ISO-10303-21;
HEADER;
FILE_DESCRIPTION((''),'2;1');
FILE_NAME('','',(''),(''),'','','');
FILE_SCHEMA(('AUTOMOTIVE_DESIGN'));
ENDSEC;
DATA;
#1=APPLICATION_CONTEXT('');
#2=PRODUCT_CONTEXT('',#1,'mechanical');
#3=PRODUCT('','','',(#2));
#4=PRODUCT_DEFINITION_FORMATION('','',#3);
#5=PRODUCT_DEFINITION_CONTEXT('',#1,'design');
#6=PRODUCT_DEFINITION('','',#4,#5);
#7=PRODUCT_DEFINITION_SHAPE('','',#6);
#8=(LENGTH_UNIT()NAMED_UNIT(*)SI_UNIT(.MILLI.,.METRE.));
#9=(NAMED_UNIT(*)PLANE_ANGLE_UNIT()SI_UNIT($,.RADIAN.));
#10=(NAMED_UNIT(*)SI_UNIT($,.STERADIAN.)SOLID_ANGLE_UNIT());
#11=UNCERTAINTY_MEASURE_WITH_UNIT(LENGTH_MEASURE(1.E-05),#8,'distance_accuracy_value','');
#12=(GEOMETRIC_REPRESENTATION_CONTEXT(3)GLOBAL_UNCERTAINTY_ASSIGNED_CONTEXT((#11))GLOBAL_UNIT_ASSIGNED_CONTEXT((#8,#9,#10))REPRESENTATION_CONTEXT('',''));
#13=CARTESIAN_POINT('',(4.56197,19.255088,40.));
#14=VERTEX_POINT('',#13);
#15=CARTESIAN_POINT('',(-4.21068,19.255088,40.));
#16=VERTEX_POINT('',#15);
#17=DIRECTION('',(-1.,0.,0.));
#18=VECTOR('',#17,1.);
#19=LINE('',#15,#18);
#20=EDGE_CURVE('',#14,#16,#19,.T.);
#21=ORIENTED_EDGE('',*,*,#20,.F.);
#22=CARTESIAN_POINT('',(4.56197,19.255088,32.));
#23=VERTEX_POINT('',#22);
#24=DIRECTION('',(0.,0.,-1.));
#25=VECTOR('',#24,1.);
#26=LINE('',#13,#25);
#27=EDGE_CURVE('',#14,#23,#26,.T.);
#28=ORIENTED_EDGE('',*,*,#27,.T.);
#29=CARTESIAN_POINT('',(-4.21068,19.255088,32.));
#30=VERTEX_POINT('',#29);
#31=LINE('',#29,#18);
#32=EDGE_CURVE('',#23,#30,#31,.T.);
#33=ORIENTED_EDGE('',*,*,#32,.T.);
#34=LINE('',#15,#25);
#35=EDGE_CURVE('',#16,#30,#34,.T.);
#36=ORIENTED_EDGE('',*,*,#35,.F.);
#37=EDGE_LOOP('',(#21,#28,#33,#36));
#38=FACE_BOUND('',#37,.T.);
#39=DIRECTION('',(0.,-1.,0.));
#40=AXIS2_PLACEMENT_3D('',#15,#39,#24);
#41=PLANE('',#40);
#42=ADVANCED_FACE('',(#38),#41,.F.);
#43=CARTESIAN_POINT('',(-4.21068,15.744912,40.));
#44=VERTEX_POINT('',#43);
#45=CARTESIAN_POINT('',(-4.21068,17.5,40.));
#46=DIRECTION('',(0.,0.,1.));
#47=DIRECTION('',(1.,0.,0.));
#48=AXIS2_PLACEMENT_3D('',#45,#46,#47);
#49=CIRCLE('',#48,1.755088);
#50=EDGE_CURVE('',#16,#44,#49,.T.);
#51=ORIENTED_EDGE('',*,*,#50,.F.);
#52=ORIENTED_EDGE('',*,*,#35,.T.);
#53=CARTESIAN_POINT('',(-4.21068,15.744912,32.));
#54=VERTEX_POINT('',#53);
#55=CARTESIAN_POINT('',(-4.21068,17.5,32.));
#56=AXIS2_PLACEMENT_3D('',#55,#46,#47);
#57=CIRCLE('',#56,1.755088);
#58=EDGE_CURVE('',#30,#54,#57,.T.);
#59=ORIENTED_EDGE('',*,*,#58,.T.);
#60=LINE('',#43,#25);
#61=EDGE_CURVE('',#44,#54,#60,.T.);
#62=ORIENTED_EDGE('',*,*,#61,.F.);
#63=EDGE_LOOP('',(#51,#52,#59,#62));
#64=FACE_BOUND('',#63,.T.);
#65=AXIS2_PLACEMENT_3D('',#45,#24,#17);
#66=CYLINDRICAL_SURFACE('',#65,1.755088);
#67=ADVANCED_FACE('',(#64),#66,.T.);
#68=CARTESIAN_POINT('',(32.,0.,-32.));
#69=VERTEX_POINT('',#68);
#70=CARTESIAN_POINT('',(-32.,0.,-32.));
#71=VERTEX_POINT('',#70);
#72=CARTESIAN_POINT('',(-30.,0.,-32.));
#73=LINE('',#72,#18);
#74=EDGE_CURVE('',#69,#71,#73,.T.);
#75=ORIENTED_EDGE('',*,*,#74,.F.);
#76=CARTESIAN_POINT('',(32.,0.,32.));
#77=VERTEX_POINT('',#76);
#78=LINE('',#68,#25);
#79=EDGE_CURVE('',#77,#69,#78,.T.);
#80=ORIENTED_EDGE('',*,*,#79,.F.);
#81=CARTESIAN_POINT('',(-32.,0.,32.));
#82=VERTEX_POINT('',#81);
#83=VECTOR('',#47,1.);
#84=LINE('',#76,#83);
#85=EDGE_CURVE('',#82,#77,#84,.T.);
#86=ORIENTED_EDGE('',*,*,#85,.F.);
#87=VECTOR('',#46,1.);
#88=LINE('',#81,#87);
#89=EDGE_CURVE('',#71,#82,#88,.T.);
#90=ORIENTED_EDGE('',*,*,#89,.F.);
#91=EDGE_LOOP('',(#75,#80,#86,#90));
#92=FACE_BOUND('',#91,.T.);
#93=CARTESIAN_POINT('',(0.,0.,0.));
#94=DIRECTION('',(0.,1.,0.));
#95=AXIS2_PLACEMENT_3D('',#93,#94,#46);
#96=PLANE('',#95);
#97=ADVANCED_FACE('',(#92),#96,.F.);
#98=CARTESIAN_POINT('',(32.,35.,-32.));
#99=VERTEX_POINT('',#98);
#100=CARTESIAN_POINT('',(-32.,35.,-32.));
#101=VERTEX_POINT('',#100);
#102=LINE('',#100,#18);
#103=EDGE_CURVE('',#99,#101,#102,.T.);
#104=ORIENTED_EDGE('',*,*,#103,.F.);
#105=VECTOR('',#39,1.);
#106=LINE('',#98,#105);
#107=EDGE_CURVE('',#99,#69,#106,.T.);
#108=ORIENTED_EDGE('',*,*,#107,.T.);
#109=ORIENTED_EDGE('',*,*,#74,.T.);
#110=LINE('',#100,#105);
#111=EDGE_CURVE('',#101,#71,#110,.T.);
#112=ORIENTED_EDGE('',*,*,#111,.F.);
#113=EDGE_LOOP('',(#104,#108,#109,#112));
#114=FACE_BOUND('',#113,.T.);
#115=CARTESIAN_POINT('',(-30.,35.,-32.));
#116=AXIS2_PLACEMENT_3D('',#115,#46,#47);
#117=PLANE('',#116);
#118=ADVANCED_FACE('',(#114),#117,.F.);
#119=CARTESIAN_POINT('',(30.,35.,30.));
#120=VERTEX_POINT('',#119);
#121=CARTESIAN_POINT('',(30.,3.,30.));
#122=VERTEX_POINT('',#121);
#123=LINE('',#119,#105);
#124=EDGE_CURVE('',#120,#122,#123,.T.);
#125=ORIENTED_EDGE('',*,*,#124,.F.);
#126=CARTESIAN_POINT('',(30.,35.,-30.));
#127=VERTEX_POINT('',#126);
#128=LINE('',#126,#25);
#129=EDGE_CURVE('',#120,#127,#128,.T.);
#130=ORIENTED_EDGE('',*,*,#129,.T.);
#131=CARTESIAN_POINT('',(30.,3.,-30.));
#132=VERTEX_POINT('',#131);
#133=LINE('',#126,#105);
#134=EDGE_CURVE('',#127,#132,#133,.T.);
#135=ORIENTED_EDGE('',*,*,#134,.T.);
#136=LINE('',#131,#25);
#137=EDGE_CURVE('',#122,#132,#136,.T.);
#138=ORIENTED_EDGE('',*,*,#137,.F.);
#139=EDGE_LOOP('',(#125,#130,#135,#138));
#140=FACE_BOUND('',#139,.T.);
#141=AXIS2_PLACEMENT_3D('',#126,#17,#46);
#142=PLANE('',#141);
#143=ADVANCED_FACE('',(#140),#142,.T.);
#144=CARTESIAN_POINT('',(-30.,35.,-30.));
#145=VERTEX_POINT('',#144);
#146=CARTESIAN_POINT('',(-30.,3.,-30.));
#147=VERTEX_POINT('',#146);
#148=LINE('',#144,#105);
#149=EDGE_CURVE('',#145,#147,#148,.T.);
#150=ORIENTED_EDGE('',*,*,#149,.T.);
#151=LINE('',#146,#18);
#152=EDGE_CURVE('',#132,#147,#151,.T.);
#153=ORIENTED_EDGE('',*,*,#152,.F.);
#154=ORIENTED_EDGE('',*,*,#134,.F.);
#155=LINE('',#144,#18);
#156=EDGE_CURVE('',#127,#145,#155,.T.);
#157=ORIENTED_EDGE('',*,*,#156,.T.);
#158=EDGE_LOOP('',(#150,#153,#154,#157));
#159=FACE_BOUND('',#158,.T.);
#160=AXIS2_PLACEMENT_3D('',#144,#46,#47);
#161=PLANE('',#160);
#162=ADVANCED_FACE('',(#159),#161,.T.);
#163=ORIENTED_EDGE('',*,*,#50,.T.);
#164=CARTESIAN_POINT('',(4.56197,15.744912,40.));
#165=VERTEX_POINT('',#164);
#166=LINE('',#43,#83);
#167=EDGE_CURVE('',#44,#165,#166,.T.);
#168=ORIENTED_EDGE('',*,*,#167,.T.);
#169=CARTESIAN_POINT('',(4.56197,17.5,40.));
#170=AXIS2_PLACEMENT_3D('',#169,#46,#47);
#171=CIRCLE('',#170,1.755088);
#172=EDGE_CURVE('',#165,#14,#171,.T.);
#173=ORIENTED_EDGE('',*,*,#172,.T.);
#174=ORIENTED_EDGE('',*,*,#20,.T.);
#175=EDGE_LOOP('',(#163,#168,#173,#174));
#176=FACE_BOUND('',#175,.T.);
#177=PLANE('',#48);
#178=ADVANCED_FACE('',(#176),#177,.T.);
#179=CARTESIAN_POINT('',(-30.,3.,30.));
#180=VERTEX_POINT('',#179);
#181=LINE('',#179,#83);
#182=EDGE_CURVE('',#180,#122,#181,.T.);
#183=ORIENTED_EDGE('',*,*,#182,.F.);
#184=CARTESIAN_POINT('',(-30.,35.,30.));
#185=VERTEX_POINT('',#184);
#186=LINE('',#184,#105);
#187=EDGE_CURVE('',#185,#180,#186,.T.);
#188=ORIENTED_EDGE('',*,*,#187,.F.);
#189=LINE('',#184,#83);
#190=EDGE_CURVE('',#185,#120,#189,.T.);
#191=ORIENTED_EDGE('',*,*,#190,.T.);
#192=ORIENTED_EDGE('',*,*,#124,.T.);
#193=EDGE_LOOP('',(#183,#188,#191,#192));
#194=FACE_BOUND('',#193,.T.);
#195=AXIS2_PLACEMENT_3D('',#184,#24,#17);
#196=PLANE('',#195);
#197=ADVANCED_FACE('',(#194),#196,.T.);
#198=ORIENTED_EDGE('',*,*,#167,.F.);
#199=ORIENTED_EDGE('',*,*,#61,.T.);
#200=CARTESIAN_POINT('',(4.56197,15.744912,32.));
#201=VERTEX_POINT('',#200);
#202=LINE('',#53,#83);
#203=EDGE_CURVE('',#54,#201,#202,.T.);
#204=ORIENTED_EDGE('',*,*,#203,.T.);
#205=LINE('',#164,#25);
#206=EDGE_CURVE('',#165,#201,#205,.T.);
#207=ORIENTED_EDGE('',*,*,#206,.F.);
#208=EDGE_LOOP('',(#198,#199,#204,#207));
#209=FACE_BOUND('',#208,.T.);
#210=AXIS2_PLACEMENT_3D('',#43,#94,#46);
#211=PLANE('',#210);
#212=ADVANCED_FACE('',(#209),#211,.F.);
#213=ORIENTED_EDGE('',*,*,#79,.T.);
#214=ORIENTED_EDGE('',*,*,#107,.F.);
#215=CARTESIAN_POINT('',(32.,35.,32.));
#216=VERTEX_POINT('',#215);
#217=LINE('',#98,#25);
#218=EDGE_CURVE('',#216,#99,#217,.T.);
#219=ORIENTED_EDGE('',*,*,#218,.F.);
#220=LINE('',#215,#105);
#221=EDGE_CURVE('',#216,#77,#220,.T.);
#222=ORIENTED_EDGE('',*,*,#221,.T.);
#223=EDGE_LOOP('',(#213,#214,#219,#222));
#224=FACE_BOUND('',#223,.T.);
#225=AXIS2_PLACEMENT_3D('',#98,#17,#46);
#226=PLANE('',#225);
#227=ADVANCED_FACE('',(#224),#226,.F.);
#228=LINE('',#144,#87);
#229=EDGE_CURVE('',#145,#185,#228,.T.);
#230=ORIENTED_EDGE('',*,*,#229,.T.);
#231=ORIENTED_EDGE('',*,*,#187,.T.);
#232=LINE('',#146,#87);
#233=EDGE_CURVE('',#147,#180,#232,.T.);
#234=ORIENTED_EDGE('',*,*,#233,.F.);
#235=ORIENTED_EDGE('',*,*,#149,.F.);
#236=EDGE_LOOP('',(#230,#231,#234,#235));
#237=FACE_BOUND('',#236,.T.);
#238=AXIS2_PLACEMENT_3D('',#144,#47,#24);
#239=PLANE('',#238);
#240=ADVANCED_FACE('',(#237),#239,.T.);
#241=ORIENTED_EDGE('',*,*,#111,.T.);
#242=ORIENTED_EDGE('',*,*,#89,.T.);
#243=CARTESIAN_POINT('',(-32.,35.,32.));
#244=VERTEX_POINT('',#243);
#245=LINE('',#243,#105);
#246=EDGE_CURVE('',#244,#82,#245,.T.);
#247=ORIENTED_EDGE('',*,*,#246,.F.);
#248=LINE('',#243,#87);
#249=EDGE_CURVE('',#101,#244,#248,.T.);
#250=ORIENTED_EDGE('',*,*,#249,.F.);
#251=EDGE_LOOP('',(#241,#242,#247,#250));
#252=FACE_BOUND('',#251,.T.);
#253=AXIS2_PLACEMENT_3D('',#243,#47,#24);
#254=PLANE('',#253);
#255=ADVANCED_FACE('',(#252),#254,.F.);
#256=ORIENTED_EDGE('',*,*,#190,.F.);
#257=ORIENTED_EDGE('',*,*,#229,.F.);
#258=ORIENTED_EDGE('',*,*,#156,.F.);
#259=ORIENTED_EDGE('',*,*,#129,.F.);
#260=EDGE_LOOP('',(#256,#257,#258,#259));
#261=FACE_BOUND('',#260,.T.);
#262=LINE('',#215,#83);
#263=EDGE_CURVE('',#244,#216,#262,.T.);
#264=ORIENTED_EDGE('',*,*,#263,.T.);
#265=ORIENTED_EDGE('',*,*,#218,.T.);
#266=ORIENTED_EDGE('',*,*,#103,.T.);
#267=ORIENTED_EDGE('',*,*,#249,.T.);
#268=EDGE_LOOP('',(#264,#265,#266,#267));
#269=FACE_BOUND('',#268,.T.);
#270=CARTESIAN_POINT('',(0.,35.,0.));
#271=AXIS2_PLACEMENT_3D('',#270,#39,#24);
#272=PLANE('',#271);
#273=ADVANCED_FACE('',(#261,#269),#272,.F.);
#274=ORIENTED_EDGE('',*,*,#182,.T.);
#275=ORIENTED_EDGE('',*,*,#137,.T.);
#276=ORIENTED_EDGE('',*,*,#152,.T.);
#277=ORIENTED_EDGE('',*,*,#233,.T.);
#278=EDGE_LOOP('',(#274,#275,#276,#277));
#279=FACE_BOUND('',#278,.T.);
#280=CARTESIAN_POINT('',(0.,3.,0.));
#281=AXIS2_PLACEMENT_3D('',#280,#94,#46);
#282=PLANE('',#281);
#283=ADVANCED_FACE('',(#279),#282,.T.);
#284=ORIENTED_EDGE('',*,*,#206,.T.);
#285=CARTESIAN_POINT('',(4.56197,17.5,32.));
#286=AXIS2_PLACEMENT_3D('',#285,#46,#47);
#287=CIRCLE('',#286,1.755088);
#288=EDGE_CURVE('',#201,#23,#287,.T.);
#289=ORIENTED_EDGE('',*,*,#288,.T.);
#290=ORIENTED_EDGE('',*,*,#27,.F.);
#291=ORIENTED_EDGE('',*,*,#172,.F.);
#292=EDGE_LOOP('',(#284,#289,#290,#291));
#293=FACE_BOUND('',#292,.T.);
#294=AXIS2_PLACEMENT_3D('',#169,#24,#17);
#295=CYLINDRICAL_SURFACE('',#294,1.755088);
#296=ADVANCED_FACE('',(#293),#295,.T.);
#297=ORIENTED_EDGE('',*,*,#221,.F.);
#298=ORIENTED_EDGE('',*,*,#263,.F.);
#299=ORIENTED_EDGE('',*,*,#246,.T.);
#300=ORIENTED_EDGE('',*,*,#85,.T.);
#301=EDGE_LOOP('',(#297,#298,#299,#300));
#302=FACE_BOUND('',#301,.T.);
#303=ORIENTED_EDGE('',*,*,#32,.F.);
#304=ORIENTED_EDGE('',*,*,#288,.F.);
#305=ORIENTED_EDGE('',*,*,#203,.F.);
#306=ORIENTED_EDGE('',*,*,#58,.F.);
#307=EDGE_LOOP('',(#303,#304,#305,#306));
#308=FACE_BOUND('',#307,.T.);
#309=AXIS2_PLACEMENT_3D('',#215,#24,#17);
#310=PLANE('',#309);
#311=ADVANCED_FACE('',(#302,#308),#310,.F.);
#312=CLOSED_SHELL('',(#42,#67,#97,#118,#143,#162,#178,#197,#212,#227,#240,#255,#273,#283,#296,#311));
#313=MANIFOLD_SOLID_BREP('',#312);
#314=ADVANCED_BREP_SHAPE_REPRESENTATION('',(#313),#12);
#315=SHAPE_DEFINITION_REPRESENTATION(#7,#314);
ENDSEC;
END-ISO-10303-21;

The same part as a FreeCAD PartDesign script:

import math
import FreeCAD as App
import Part
import Sketcher

V = App.Vector
Q = App.Units.Quantity

doc = App.newDocument("Part")
body = doc.addObject("PartDesign::Body", "Body")

sketch1 = body.newObject("Sketcher::SketchObject", "Sketch")
sketch1.AttachmentSupport = (doc.getObject("XZ_Plane"), [""])
sketch1.MapMode = "FlatFace"
sketch1.addGeometry([
    Part.LineSegment(V(-30, -30, 0), V(-30, 30, 0)),
    Part.LineSegment(V(-30, 30, 0), V(30, 30, 0)),
    Part.LineSegment(V(30, 30, 0), V(30, -30, 0)),
    Part.LineSegment(V(30, -30, 0), V(-30, -30, 0)),
], False)
sketch1.addConstraint([
    Sketcher.Constraint("Coincident", 0, 2, 1, 1),
    Sketcher.Constraint("Coincident", 1, 2, 2, 1),
    Sketcher.Constraint("Coincident", 2, 2, 3, 1),
    Sketcher.Constraint("Coincident", 3, 2, 0, 1),
    Sketcher.Constraint("Vertical", 0),
    Sketcher.Constraint("Horizontal", 1),
    Sketcher.Constraint("Vertical", 2),
    Sketcher.Constraint("Horizontal", 3),
    Sketcher.Constraint("Symmetric", 0, 2, 2, 2, -1, 1),
    Sketcher.Constraint("Equal", 3, 0),
    Sketcher.Constraint("DistanceX", 1, 1, 1, 2, Q("60 mm")),
])
pad1 = body.newObject("PartDesign::Pad", "Pad")
pad1.Profile = sketch1
pad1.Length = 3
pad1.Reversed = True

sketch2 = body.newObject("Sketcher::SketchObject", "Sketch001")
sketch2.AttachmentSupport = (doc.getObject("XZ_Plane"), [""])
sketch2.MapMode = "FlatFace"
sketch2.addGeometry([
    Part.LineSegment(V(32, -32, 0), V(-32, -32, 0)),
    Part.LineSegment(V(-32, -32, 0), V(-32, 32, 0)),
    Part.LineSegment(V(-32, 32, 0), V(32, 32, 0)),
    Part.LineSegment(V(32, 32, 0), V(32, -32, 0)),
    Part.LineSegment(V(-30, 30, 0), V(-30, -30, 0)),
    Part.LineSegment(V(-30, -30, 0), V(30, -30, 0)),
    Part.LineSegment(V(30, -30, 0), V(30, 30, 0)),
    Part.LineSegment(V(30, 30, 0), V(-30, 30, 0)),
], False)
sketch2.addConstraint([
    Sketcher.Constraint("Coincident", 0, 2, 1, 1),
    Sketcher.Constraint("Coincident", 1, 2, 2, 1),
    Sketcher.Constraint("Coincident", 2, 2, 3, 1),
    Sketcher.Constraint("Coincident", 3, 2, 0, 1),
    Sketcher.Constraint("Coincident", 4, 2, 5, 1),
    Sketcher.Constraint("Coincident", 5, 2, 6, 1),
    Sketcher.Constraint("Coincident", 6, 2, 7, 1),
    Sketcher.Constraint("Coincident", 7, 2, 4, 1),
    Sketcher.Constraint("Horizontal", 0),
    Sketcher.Constraint("Vertical", 1),
    Sketcher.Constraint("Horizontal", 2),
    Sketcher.Constraint("Vertical", 3),
    Sketcher.Constraint("Vertical", 4),
    Sketcher.Constraint("Horizontal", 5),
    Sketcher.Constraint("Vertical", 6),
    Sketcher.Constraint("Horizontal", 7),
    Sketcher.Constraint("Symmetric", 0, 2, 2, 2, -1, 1),
    Sketcher.Constraint("Symmetric", 4, 2, 6, 2, -1, 1),
    Sketcher.Constraint("Equal", 2, 1),
    Sketcher.Constraint("Equal", 7, 4),
    Sketcher.Constraint("DistanceX", 0, 2, 0, 1, Q("64 mm")),
    Sketcher.Constraint("DistanceX", 5, 1, 5, 2, Q("60 mm")),
])
pad2 = body.newObject("PartDesign::Pad", "Pad001")
pad2.Profile = sketch2
pad2.Length = 35
pad2.Reversed = True

sketch3 = body.newObject("Sketcher::SketchObject", "Sketch002")
sketch3.AttachmentSupport = (doc.getObject("XY_Plane"), [""])
sketch3.MapMode = "FlatFace"
sketch3.AttachmentOffset = App.Placement(V(0, 0, 32), App.Rotation())
sketch3.addGeometry([
    Part.LineSegment(V(4.6, 19.3, 0), V(-4.2, 19.3, 0)),
    Part.ArcOfCircle(Part.Circle(V(-4.2, 17.5, 0), V(0, 0, 1), 1.8), math.radians(90), math.radians(270)),
    Part.LineSegment(V(-4.2, 15.7, 0), V(4.6, 15.7, 0)),
    Part.ArcOfCircle(Part.Circle(V(4.6, 17.5, 0), V(0, 0, 1), 1.8), math.radians(-90), math.radians(90)),
], False)
sketch3.addConstraint([
    Sketcher.Constraint("Tangent", 0, 2, 1, 1),
    Sketcher.Constraint("Tangent", 1, 2, 2, 1),
    Sketcher.Constraint("Tangent", 2, 2, 3, 1),
    Sketcher.Constraint("Tangent", 3, 2, 0, 1),
    Sketcher.Constraint("Horizontal", 0),
    Sketcher.Constraint("Horizontal", 2),
    Sketcher.Constraint("DistanceY", -1, 1, 1, 3, Q("17.5 mm")),
    Sketcher.Constraint("Radius", 1, Q("1.755088 mm")),
    Sketcher.Constraint("DistanceX", 0, 2, 0, 1, Q("8.772651 mm")),
    Sketcher.Constraint("DistanceX", 1, 3, -1, 1, Q("4.21068 mm")),
])
pad3 = body.newObject("PartDesign::Pad", "Pad002")
pad3.Profile = sketch3
pad3.Length = 8

doc.recompute()
